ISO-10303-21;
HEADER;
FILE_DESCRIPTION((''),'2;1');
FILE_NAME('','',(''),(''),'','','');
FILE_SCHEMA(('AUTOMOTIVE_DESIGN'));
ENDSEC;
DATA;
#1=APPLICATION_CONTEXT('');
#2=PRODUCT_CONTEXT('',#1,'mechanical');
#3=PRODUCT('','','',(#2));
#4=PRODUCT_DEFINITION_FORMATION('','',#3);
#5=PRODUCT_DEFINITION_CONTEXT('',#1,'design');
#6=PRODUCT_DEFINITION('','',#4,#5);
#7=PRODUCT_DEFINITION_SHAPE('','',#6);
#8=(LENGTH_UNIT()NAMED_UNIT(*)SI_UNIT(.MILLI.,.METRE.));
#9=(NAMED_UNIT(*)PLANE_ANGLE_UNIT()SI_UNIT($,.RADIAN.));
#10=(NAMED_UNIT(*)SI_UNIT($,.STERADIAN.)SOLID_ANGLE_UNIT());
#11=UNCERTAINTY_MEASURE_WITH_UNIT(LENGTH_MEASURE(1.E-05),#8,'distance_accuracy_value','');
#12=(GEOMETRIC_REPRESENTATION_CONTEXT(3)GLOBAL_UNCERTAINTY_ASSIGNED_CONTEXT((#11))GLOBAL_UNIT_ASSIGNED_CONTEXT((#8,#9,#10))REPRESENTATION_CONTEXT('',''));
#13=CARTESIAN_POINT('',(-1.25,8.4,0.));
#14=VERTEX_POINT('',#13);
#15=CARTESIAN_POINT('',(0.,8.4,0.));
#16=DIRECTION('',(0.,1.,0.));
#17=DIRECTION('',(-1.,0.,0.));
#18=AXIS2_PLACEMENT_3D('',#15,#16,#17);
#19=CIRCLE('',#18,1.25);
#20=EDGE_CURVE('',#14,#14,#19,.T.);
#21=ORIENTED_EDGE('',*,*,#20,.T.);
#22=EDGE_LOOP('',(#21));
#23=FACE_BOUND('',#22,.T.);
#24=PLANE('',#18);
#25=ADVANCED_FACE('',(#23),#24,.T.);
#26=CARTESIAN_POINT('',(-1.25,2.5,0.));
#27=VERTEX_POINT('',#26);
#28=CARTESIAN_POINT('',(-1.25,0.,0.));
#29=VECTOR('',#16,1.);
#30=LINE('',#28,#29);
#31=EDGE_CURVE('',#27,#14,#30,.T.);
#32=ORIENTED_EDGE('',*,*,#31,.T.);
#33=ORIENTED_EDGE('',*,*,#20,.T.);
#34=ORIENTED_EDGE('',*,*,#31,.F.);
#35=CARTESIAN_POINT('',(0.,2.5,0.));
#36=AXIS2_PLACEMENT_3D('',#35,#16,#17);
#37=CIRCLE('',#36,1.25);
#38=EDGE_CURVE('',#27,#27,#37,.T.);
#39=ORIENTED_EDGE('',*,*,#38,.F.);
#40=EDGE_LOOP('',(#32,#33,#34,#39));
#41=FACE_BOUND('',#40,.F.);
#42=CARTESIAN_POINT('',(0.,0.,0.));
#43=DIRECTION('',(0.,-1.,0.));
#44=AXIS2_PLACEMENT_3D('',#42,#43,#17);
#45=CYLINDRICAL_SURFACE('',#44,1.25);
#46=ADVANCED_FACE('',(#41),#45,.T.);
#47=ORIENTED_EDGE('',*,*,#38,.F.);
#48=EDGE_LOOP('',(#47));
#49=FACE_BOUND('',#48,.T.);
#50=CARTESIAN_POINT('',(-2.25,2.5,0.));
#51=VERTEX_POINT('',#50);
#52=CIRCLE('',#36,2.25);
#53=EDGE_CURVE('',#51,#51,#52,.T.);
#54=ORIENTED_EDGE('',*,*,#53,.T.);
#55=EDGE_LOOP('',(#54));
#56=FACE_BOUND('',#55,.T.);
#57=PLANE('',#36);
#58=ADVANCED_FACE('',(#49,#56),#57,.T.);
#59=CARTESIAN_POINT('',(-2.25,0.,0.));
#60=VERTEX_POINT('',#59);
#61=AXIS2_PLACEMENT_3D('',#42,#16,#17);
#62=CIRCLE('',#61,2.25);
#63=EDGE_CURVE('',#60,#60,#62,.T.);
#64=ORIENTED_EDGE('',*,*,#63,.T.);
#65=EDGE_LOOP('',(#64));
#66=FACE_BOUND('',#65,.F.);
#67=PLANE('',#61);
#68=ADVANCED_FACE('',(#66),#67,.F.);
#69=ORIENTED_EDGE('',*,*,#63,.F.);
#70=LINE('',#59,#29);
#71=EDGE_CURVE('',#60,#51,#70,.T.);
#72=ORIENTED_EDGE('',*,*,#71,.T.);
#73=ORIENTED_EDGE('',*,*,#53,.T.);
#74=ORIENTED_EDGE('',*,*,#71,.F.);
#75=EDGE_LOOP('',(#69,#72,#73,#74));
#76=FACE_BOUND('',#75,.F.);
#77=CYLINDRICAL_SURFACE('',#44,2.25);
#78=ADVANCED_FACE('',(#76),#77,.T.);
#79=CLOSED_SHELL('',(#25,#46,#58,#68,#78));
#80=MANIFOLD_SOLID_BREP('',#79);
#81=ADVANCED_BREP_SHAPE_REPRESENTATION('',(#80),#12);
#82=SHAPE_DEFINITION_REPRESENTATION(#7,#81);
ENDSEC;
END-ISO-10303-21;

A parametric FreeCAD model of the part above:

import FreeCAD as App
import Part
import Sketcher

V = App.Vector
Q = App.Units.Quantity

doc = App.newDocument("Part")
body = doc.addObject("PartDesign::Body", "Body")

sketch1 = body.newObject("Sketcher::SketchObject", "Sketch")
sketch1.AttachmentSupport = (doc.getObject("XZ_Plane"), [""])
sketch1.MapMode = "FlatFace"
sketch1.addGeometry(Part.Circle(V(0, 0, 0), V(0, 0, 1), 1.2), False)
sketch1.addConstraint([
    Sketcher.Constraint("Coincident", 0, 3, -1, 1),
    Sketcher.Constraint("Diameter", 0, Q("2.5 mm")),
])
pad1 = body.newObject("PartDesign::Pad", "Pad")
pad1.Profile = sketch1
pad1.Length = 8.4
pad1.Reversed = True

sketch2 = body.newObject("Sketcher::SketchObject", "Sketch001")
sketch2.AttachmentSupport = (doc.getObject("XZ_Plane"), [""])
sketch2.MapMode = "FlatFace"
sketch2.addGeometry([
    Part.Circle(V(0, 0, 0), V(0, 0, 1), 2.2),
    Part.Circle(V(0, 0, 0), V(0, 0, 1), 1.2),
], False)
sketch2.addConstraint([
    Sketcher.Constraint("Coincident", 0, 3, -1, 1),
    Sketcher.Constraint("Coincident", 1, 3, -1, 1),
    Sketcher.Constraint("Diameter", 0, Q("4.5 mm")),
    Sketcher.Constraint("Diameter", 1, Q("2.5 mm")),
])
pad2 = body.newObject("PartDesign::Pad", "Pad001")
pad2.Profile = sketch2
pad2.Length = 2.5
pad2.Reversed = True

doc.recompute()
